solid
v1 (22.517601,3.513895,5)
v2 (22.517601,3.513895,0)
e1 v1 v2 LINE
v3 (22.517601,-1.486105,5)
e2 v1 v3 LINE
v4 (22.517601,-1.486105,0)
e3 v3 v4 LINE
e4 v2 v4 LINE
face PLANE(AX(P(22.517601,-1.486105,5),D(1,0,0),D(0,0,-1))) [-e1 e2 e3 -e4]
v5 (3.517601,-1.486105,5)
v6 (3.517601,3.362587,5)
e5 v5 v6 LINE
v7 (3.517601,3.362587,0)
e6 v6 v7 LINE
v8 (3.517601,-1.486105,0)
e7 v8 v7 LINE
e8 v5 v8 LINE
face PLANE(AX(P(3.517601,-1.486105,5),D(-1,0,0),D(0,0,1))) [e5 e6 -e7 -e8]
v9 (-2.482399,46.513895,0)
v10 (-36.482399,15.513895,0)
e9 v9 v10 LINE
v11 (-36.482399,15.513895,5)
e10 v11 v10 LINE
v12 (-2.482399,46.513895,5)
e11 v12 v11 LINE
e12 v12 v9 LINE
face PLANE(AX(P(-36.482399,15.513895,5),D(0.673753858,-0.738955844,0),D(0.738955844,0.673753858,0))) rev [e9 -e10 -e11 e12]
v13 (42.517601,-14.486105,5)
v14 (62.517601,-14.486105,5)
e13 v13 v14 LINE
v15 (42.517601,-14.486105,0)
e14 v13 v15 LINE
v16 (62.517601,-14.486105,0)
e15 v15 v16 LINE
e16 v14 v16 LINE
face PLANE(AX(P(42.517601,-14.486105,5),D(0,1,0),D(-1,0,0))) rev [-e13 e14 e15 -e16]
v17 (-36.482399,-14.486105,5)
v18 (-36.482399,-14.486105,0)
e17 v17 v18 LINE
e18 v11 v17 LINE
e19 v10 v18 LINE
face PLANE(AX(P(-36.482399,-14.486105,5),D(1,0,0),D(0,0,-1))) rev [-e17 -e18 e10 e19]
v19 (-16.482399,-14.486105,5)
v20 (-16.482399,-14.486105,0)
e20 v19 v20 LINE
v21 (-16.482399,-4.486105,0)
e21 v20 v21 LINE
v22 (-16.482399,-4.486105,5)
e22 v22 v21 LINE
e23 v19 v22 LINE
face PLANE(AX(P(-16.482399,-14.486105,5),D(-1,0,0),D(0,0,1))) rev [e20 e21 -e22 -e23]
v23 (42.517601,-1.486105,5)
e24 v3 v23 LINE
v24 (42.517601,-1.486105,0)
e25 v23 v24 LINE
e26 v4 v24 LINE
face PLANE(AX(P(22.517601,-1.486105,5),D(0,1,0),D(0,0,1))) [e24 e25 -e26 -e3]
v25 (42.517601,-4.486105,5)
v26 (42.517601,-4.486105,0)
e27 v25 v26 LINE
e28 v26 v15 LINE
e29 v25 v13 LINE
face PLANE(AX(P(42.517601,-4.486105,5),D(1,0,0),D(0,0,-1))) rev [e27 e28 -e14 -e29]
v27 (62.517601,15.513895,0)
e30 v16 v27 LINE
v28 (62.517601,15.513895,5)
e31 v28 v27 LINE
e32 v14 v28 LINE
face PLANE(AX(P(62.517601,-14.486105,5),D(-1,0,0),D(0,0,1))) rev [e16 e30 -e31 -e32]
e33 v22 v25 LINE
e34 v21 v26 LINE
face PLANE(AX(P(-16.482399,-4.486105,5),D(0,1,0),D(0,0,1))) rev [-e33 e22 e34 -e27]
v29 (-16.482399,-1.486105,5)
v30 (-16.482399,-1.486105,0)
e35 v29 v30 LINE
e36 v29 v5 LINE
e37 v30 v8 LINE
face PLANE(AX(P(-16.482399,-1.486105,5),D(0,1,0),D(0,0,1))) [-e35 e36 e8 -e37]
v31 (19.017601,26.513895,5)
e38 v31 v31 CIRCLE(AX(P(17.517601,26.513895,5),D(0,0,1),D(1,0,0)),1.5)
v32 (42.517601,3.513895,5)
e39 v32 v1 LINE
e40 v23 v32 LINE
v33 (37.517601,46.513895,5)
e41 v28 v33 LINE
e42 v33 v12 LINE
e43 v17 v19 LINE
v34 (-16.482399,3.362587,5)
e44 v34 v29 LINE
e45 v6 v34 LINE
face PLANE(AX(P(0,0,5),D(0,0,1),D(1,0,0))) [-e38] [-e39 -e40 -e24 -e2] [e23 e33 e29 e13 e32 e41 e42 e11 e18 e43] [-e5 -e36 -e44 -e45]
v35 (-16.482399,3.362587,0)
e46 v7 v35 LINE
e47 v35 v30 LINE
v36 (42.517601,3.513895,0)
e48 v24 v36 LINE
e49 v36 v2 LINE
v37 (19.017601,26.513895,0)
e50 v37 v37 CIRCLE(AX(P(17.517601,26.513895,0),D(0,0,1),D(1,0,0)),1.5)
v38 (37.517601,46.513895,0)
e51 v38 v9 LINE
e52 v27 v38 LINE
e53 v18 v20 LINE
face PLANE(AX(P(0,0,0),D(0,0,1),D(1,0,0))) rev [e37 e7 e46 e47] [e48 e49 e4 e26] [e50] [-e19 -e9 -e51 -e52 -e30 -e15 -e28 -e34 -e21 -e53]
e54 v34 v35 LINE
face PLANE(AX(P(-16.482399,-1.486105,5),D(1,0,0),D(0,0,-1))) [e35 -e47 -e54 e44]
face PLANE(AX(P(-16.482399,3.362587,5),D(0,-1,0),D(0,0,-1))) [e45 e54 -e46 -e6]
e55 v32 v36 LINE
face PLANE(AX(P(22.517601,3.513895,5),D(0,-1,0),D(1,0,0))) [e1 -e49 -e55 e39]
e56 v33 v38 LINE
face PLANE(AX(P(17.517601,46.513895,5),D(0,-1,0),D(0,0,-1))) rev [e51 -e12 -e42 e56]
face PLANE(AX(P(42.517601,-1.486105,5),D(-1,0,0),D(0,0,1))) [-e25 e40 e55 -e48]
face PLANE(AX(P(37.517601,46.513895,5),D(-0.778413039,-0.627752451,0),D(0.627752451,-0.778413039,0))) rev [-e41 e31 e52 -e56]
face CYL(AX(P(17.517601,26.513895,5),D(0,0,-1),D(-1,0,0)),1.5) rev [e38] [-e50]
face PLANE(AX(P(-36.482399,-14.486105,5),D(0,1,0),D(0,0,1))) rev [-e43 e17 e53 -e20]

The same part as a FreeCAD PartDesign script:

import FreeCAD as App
import Part
import Sketcher


def add_polygon(sketch, points):
    """Adds a closed chain of lines whose ends are joined by coincident constraints."""
    first, n = sketch.GeometryCount, len(points)
    for a, b in zip(points, points[1:] + points[:1]):
        sketch.addGeometry(Part.LineSegment(App.Vector(*a, 0), App.Vector(*b, 0)), False)
    for i in range(n):
        sketch.addConstraint(Sketcher.Constraint("Coincident", first + i, 2, first + (i + 1) % n, 1))

doc = App.newDocument("Part")
body = doc.addObject("PartDesign::Body", "Body")

# Sketch on XY plane
sketch1 = body.newObject("Sketcher::SketchObject", "Sketch")
sketch1.AttachmentSupport = (doc.getObject("XY_Plane"), [""])
sketch1.MapMode = "FlatFace"
add_polygon(sketch1, [(-36.5, -14.5), (-16.5, -14.5), (-16.5, -4.5), (42.5, -4.5), (42.5, -14.5), (62.5, -14.5), (62.5, 15.5), (37.5, 46.5), (-2.5, 46.5), (-36.5, 15.5)])  # lines 0-9
add_polygon(sketch1, [(3.5, -1.5), (-16.5, -1.5), (-16.5, 3.4), (3.5, 3.4)])  # lines 10-13
add_polygon(sketch1, [(42.5, -1.5), (22.5, -1.5), (22.5, 3.5), (42.5, 3.5)])  # lines 14-17
sketch1.addGeometry(Part.Circle(App.Vector(17.5, 26.5, 0), App.Vector(0, 0, 1), 1.5), False)  # 18
sketch1.addConstraint([
    Sketcher.Constraint("Horizontal", 0),
    Sketcher.Constraint("Vertical", 1),
    Sketcher.Constraint("Horizontal", 2),
    Sketcher.Constraint("Vertical", 3),
    Sketcher.Constraint("Horizontal", 4),
    Sketcher.Constraint("Vertical", 5),
    Sketcher.Constraint("Horizontal", 7),
    Sketcher.Constraint("Vertical", 9),
    Sketcher.Constraint("Horizontal", 10),
    Sketcher.Constraint("Vertical", 11),
    Sketcher.Constraint("Horizontal", 12),
    Sketcher.Constraint("Vertical", 13),
    Sketcher.Constraint("Horizontal", 14),
    Sketcher.Constraint("Vertical", 15),
    Sketcher.Constraint("Horizontal", 16),
    Sketcher.Constraint("Vertical", 17),
    Sketcher.Constraint("Horizontal", 0, 2, 3, 2),
    Sketcher.Constraint("Horizontal", 5, 2, 8, 2),
    Sketcher.Constraint("Horizontal", 13, 2, 14, 2),
    Sketcher.Constraint("Vertical", 1, 2, 10, 2),
    Sketcher.Constraint("Vertical", 3, 2, 16, 2),
    Sketcher.Constraint("Equal", 0, 4),
    Sketcher.Constraint("Equal", 4, 10),
    Sketcher.Constraint("Equal", 12, 14),
    Sketcher.Constraint("Diameter", 18, 3.0),
    Sketcher.Constraint("DistanceX", 0, 1, 0, 2, 20.0),
    Sketcher.Constraint("DistanceX", 2, 1, 2, 2, 59.0),
    Sketcher.Constraint("DistanceX", 7, 2, 7, 1, 40.0),
    Sketcher.Constraint("DistanceY", 1, 1, 1, 2, 10.0),
    Sketcher.Constraint("DistanceY", 5, 1, 5, 2, 30.0),
    Sketcher.Constraint("DistanceY", 15, 1, 15, 2, 5.0),
    Sketcher.Constraint("DistanceX", 0, 2, 18, 3, 34.0),
    Sketcher.Constraint("DistanceY", 0, 2, 18, 3, 41.0),
    Sketcher.Constraint("DistanceX", 18, 3, 6, 2, 20.0),
    Sketcher.Constraint("DistanceY", 18, 3, 6, 2, 20.0),
    Sketcher.Constraint("DistanceY", 1, 2, 10, 2, 3.0),
    Sketcher.Constraint("DistanceY", 11, 1, 11, 2, 4.848691),
    Sketcher.Constraint("DistanceX", -1, 1, 18, 3, 17.517601),
    Sketcher.Constraint("DistanceY", -1, 1, 18, 3, 26.513895),
])
pad1 = body.newObject("PartDesign::Pad", "Pad")
pad1.Profile = sketch1
pad1.Length = 5

doc.recompute()
